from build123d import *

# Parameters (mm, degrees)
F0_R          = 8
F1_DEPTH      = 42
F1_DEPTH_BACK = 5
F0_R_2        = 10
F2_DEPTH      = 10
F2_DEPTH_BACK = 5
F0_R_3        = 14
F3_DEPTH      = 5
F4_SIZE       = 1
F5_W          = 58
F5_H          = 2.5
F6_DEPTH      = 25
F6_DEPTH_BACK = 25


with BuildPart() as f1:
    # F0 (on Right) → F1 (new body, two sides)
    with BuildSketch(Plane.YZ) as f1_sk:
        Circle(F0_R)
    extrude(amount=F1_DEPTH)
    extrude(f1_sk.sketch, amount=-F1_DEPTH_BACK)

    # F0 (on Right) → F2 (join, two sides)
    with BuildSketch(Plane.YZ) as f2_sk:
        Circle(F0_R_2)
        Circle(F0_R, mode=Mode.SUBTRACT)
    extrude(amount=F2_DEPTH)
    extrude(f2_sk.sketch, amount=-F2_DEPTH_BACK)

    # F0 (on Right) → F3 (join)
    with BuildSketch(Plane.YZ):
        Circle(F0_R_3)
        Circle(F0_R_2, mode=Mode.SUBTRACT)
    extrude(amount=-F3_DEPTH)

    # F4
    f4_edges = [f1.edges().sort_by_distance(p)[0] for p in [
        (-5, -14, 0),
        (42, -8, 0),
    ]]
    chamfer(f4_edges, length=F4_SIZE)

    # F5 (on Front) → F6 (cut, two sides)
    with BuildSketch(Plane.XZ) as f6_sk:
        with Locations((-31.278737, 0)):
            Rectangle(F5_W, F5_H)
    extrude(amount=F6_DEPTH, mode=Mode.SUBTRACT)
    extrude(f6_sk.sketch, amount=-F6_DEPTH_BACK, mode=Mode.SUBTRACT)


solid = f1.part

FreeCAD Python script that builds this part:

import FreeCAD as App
import Part
import Sketcher
from FreeCAD import Vector
Q = App.Units.Quantity


def edges_at(feature, points):
    """Names of the edges that pass closest to the given points."""
    edges = feature.Shape.Edges
    near = lambda p: min(range(len(edges)), key=lambda i: edges[i].distToShape(Part.Vertex(*p))[0])
    return sorted({f"Edge{near(p) + 1}" for p in points})


def add_polygon(sketch, points):
    """Adds a closed chain of lines whose ends are joined by coincident constraints."""
    first, n = sketch.GeometryCount, len(points)
    for a, b in zip(points, points[1:] + points[:1]):
        sketch.addGeometry(Part.LineSegment(App.Vector(*a, 0), App.Vector(*b, 0)), False)
    for i in range(n):
        sketch.addConstraint(Sketcher.Constraint("Coincident", first + i, 2, first + (i + 1) % n, 1))

doc = App.newDocument("Part")
params = doc.addObject("Spreadsheet::Sheet", "Params")
for row, (alias, value) in enumerate([
    ("sketch1_diameter", "16 mm"),
    ("pad1_length", "42 mm"),
    ("pad1_length2", "5 mm"),
    ("sketch2_diameter", "20 mm"),
    ("sketch2_diameter2", "16 mm"),
    ("pad2_length", "10 mm"),
    ("pad2_length2", "5 mm"),
    ("sketch3_diameter", "28 mm"),
    ("sketch3_diameter2", "20 mm"),
    ("pad3_length", "5 mm"),
    ("chamfer_size", "1 mm"),
    ("sketch4_width", "58 mm"),
    ("sketch4_height", "2.5 mm"),
], start=1):
    params.set(f"A{row}", alias)
    params.set(f"B{row}", "=" + value)
    params.setAlias(f"B{row}", alias)

body = doc.addObject("PartDesign::Body", "Body")

# Sketch on YZ plane
sketch1 = doc.addObject("Sketcher::SketchObject", "Sketch")
body.addObject(sketch1)
sketch1.AttachmentSupport = (doc.YZ_Plane, [""])
sketch1.MapMode = "FlatFace"
sketch1.addGeometry(Part.Circle(Vector(0, 0, 0), Vector(0, 0, 1), 8), False)
sketch1.addConstraint(Sketcher.Constraint("Coincident", 0, 3, -1, 1))
sketch1.addConstraint(Sketcher.Constraint("Diameter", 0, Q("16 mm")))
sketch1.setExpression("Constraints[1]", "Params.sketch1_diameter")
pad1 = doc.addObject("PartDesign::Pad", "Pad")
body.addObject(pad1)
pad1.Profile = sketch1
pad1.Type = "TwoLengths"
pad1.setExpression("Length", "Params.pad1_length")
pad1.setExpression("Length2", "Params.pad1_length2")

# Sketch on YZ plane
sketch2 = doc.addObject("Sketcher::SketchObject", "Sketch001")
body.addObject(sketch2)
sketch2.AttachmentSupport = (doc.YZ_Plane, [""])
sketch2.MapMode = "FlatFace"
sketch2.addGeometry(Part.Circle(Vector(0, 0, 0), Vector(0, 0, 1), 10), False)
sketch2.addGeometry(Part.Circle(Vector(0, 0, 0), Vector(0, 0, 1), 8), False)
sketch2.addConstraint(Sketcher.Constraint("Coincident", 0, 3, -1, 1))
sketch2.addConstraint(Sketcher.Constraint("Coincident", 1, 3, -1, 1))
sketch2.addConstraint(Sketcher.Constraint("Diameter", 0, Q("20 mm")))
sketch2.addConstraint(Sketcher.Constraint("Diameter", 1, Q("16 mm")))
sketch2.setExpression("Constraints[2]", "Params.sketch2_diameter")
sketch2.setExpression("Constraints[3]", "Params.sketch2_diameter2")
pad2 = doc.addObject("PartDesign::Pad", "Pad001")
body.addObject(pad2)
pad2.Profile = sketch2
pad2.Type = "TwoLengths"
pad2.setExpression("Length", "Params.pad2_length")
pad2.setExpression("Length2", "Params.pad2_length2")

# Sketch on YZ plane
sketch3 = doc.addObject("Sketcher::SketchObject", "Sketch002")
body.addObject(sketch3)
sketch3.AttachmentSupport = (doc.YZ_Plane, [""])
sketch3.MapMode = "FlatFace"
sketch3.addGeometry(Part.Circle(Vector(0, 0, 0), Vector(0, 0, 1), 14), False)
sketch3.addGeometry(Part.Circle(Vector(0, 0, 0), Vector(0, 0, 1), 10), False)
sketch3.addConstraint(Sketcher.Constraint("Coincident", 0, 3, -1, 1))
sketch3.addConstraint(Sketcher.Constraint("Coincident", 1, 3, -1, 1))
sketch3.addConstraint(Sketcher.Constraint("Diameter", 0, Q("28 mm")))
sketch3.addConstraint(Sketcher.Constraint("Diameter", 1, Q("20 mm")))
sketch3.setExpression("Constraints[2]", "Params.sketch3_diameter")
sketch3.setExpression("Constraints[3]", "Params.sketch3_diameter2")
pad3 = doc.addObject("PartDesign::Pad", "Pad002")
body.addObject(pad3)
pad3.Profile = sketch3
pad3.setExpression("Length", "Params.pad3_length")
pad3.Reversed = True
doc.recompute()

chamfer = doc.addObject("PartDesign::Chamfer", "Chamfer")
body.addObject(chamfer)
chamfer.Base = (pad3, edges_at(pad3, [(-5, -14, 0), (42, -8, 0)]))
chamfer.setExpression("Size", "Params.chamfer_size")

# Sketch on XZ plane
sketch4 = doc.addObject("Sketcher::SketchObject", "Sketch003")
body.addObject(sketch4)
sketch4.AttachmentSupport = (doc.XZ_Plane, [""])
sketch4.MapMode = "FlatFace"
add_polygon(sketch4, [(-60.3, 1.2), (-60.3, -1.2), (-2.3, -1.2), (-2.3, 1.2)])  # lines 0-3
sketch4.addConstraint(Sketcher.Constraint("Vertical", 0))
sketch4.addConstraint(Sketcher.Constraint("Horizontal", 1))
sketch4.addConstraint(Sketcher.Constraint("Vertical", 2))
sketch4.addConstraint(Sketcher.Constraint("Horizontal", 3))
sketch4.addConstraint(Sketcher.Constraint("DistanceX", 1, 1, 1, 2, Q("58 mm")))
sketch4.addConstraint(Sketcher.Constraint("DistanceY", 0, 2, 0, 1, Q("2.5 mm")))
sketch4.addConstraint(Sketcher.Constraint("DistanceY", 0, 2, -1, 1, Q("1.25 mm")))
sketch4.addConstraint(Sketcher.Constraint("DistanceX", 0, 2, -1, 1, Q("60.278737 mm")))
sketch4.setExpression("Constraints[8]", "Params.sketch4_width")
sketch4.setExpression("Constraints[9]", "Params.sketch4_height")
pocket1 = doc.addObject("PartDesign::Pocket", "Pocket")
body.addObject(pocket1)
pocket1.Profile = sketch4
pocket1.Type = "ThroughAll"
pocket1.Midplane = True

doc.recompute()
